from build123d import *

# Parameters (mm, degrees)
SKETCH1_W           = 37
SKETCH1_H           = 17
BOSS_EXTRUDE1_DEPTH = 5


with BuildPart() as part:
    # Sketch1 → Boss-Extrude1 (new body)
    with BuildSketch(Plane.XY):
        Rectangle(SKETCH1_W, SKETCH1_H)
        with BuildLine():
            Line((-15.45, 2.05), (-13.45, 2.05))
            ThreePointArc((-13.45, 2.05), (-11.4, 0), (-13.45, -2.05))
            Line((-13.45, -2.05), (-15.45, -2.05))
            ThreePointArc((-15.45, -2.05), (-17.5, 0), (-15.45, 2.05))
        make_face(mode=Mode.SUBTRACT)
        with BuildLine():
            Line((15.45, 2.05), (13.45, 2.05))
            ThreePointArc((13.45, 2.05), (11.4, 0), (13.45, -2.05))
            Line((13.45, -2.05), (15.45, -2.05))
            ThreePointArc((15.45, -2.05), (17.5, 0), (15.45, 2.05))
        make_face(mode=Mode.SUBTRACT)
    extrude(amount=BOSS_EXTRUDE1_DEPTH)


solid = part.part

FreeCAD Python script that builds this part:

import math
import FreeCAD as App
import Part
import Sketcher

V = App.Vector

doc = App.newDocument("Part")
body = doc.addObject("PartDesign::Body", "Body")

sketch1 = doc.addObject("Sketcher::SketchObject", "Sketch")
body.addObject(sketch1)
sketch1.AttachmentSupport = (doc.XY_Plane, [""])
sketch1.MapMode = "FlatFace"
sketch1.addGeometry([
    Part.LineSegment(V(-18.5, 8.5, 0), V(-18.5, -8.5, 0)),
    Part.LineSegment(V(-18.5, -8.5, 0), V(18.5, -8.5, 0)),
    Part.LineSegment(V(18.5, -8.5, 0), V(18.5, 8.5, 0)),
    Part.LineSegment(V(18.5, 8.5, 0), V(-18.5, 8.5, 0)),
    Part.ArcOfCircle(Part.Circle(V(-15.4, 0, 0), V(0, 0, 1), 2), math.radians(90), math.radians(270)),
    Part.LineSegment(V(-15.4, 2, 0), V(-13.4, 2, 0)),
    Part.ArcOfCircle(Part.Circle(V(-13.4, 0, 0), V(0, 0, 1), 2), math.radians(-90), math.radians(90)),
    Part.LineSegment(V(-13.4, -2, 0), V(-15.4, -2, 0)),
    Part.LineSegment(V(13.4, 2, 0), V(15.4, 2, 0)),
    Part.ArcOfCircle(Part.Circle(V(15.4, 0, 0), V(0, 0, 1), 2), math.radians(-90), math.radians(90)),
    Part.LineSegment(V(15.4, -2, 0), V(13.4, -2, 0)),
    Part.ArcOfCircle(Part.Circle(V(13.4, 0, 0), V(0, 0, 1), 2), math.radians(90), math.radians(270)),
], False)
sketch1.addConstraint([
    Sketcher.Constraint("Coincident", 0, 2, 1, 1),
    Sketcher.Constraint("Coincident", 1, 2, 2, 1),
    Sketcher.Constraint("Coincident", 2, 2, 3, 1),
    Sketcher.Constraint("Coincident", 3, 2, 0, 1),
    Sketcher.Constraint("Tangent", 4, 1, 5, 1),
    Sketcher.Constraint("Tangent", 5, 2, 6, 2),
    Sketcher.Constraint("Tangent", 6, 1, 7, 1),
    Sketcher.Constraint("Tangent", 7, 2, 4, 2),
    Sketcher.Constraint("Tangent", 8, 2, 9, 2),
    Sketcher.Constraint("Tangent", 9, 1, 10, 1),
    Sketcher.Constraint("Tangent", 10, 2, 11, 2),
    Sketcher.Constraint("Tangent", 11, 1, 8, 1),
    Sketcher.Constraint("Vertical", 0),
    Sketcher.Constraint("Horizontal", 1),
    Sketcher.Constraint("Vertical", 2),
    Sketcher.Constraint("Horizontal", 3),
    Sketcher.Constraint("Horizontal", 5),
    Sketcher.Constraint("Horizontal", 7),
    Sketcher.Constraint("Horizontal", 8),
    Sketcher.Constraint("Horizontal", 10),
    Sketcher.Constraint("Equal", 6, 9),
    Sketcher.Constraint("Symmetric", 4, 3, 9, 3, -1, 1),
    Sketcher.Constraint("Symmetric", 0, 2, 2, 2, -1, 1),
    Sketcher.Constraint("Symmetric", 6, 3, 11, 3, -2),
    Sketcher.Constraint("DistanceX", 1, 1, 1, 2, 37.0),
    Sketcher.Constraint("DistanceX", 5, 1, 5, 2, 2.0),
    Sketcher.Constraint("DistanceY", 0, 2, 0, 1, 17.0),
    Sketcher.Constraint("Radius", 4, 2.05),
    Sketcher.Constraint("DistanceX", 6, 3, 9, 3, 28.9),
])
pad1 = doc.addObject("PartDesign::Pad", "Pad")
body.addObject(pad1)
pad1.Profile = sketch1
pad1.Length = 5

doc.recompute()
